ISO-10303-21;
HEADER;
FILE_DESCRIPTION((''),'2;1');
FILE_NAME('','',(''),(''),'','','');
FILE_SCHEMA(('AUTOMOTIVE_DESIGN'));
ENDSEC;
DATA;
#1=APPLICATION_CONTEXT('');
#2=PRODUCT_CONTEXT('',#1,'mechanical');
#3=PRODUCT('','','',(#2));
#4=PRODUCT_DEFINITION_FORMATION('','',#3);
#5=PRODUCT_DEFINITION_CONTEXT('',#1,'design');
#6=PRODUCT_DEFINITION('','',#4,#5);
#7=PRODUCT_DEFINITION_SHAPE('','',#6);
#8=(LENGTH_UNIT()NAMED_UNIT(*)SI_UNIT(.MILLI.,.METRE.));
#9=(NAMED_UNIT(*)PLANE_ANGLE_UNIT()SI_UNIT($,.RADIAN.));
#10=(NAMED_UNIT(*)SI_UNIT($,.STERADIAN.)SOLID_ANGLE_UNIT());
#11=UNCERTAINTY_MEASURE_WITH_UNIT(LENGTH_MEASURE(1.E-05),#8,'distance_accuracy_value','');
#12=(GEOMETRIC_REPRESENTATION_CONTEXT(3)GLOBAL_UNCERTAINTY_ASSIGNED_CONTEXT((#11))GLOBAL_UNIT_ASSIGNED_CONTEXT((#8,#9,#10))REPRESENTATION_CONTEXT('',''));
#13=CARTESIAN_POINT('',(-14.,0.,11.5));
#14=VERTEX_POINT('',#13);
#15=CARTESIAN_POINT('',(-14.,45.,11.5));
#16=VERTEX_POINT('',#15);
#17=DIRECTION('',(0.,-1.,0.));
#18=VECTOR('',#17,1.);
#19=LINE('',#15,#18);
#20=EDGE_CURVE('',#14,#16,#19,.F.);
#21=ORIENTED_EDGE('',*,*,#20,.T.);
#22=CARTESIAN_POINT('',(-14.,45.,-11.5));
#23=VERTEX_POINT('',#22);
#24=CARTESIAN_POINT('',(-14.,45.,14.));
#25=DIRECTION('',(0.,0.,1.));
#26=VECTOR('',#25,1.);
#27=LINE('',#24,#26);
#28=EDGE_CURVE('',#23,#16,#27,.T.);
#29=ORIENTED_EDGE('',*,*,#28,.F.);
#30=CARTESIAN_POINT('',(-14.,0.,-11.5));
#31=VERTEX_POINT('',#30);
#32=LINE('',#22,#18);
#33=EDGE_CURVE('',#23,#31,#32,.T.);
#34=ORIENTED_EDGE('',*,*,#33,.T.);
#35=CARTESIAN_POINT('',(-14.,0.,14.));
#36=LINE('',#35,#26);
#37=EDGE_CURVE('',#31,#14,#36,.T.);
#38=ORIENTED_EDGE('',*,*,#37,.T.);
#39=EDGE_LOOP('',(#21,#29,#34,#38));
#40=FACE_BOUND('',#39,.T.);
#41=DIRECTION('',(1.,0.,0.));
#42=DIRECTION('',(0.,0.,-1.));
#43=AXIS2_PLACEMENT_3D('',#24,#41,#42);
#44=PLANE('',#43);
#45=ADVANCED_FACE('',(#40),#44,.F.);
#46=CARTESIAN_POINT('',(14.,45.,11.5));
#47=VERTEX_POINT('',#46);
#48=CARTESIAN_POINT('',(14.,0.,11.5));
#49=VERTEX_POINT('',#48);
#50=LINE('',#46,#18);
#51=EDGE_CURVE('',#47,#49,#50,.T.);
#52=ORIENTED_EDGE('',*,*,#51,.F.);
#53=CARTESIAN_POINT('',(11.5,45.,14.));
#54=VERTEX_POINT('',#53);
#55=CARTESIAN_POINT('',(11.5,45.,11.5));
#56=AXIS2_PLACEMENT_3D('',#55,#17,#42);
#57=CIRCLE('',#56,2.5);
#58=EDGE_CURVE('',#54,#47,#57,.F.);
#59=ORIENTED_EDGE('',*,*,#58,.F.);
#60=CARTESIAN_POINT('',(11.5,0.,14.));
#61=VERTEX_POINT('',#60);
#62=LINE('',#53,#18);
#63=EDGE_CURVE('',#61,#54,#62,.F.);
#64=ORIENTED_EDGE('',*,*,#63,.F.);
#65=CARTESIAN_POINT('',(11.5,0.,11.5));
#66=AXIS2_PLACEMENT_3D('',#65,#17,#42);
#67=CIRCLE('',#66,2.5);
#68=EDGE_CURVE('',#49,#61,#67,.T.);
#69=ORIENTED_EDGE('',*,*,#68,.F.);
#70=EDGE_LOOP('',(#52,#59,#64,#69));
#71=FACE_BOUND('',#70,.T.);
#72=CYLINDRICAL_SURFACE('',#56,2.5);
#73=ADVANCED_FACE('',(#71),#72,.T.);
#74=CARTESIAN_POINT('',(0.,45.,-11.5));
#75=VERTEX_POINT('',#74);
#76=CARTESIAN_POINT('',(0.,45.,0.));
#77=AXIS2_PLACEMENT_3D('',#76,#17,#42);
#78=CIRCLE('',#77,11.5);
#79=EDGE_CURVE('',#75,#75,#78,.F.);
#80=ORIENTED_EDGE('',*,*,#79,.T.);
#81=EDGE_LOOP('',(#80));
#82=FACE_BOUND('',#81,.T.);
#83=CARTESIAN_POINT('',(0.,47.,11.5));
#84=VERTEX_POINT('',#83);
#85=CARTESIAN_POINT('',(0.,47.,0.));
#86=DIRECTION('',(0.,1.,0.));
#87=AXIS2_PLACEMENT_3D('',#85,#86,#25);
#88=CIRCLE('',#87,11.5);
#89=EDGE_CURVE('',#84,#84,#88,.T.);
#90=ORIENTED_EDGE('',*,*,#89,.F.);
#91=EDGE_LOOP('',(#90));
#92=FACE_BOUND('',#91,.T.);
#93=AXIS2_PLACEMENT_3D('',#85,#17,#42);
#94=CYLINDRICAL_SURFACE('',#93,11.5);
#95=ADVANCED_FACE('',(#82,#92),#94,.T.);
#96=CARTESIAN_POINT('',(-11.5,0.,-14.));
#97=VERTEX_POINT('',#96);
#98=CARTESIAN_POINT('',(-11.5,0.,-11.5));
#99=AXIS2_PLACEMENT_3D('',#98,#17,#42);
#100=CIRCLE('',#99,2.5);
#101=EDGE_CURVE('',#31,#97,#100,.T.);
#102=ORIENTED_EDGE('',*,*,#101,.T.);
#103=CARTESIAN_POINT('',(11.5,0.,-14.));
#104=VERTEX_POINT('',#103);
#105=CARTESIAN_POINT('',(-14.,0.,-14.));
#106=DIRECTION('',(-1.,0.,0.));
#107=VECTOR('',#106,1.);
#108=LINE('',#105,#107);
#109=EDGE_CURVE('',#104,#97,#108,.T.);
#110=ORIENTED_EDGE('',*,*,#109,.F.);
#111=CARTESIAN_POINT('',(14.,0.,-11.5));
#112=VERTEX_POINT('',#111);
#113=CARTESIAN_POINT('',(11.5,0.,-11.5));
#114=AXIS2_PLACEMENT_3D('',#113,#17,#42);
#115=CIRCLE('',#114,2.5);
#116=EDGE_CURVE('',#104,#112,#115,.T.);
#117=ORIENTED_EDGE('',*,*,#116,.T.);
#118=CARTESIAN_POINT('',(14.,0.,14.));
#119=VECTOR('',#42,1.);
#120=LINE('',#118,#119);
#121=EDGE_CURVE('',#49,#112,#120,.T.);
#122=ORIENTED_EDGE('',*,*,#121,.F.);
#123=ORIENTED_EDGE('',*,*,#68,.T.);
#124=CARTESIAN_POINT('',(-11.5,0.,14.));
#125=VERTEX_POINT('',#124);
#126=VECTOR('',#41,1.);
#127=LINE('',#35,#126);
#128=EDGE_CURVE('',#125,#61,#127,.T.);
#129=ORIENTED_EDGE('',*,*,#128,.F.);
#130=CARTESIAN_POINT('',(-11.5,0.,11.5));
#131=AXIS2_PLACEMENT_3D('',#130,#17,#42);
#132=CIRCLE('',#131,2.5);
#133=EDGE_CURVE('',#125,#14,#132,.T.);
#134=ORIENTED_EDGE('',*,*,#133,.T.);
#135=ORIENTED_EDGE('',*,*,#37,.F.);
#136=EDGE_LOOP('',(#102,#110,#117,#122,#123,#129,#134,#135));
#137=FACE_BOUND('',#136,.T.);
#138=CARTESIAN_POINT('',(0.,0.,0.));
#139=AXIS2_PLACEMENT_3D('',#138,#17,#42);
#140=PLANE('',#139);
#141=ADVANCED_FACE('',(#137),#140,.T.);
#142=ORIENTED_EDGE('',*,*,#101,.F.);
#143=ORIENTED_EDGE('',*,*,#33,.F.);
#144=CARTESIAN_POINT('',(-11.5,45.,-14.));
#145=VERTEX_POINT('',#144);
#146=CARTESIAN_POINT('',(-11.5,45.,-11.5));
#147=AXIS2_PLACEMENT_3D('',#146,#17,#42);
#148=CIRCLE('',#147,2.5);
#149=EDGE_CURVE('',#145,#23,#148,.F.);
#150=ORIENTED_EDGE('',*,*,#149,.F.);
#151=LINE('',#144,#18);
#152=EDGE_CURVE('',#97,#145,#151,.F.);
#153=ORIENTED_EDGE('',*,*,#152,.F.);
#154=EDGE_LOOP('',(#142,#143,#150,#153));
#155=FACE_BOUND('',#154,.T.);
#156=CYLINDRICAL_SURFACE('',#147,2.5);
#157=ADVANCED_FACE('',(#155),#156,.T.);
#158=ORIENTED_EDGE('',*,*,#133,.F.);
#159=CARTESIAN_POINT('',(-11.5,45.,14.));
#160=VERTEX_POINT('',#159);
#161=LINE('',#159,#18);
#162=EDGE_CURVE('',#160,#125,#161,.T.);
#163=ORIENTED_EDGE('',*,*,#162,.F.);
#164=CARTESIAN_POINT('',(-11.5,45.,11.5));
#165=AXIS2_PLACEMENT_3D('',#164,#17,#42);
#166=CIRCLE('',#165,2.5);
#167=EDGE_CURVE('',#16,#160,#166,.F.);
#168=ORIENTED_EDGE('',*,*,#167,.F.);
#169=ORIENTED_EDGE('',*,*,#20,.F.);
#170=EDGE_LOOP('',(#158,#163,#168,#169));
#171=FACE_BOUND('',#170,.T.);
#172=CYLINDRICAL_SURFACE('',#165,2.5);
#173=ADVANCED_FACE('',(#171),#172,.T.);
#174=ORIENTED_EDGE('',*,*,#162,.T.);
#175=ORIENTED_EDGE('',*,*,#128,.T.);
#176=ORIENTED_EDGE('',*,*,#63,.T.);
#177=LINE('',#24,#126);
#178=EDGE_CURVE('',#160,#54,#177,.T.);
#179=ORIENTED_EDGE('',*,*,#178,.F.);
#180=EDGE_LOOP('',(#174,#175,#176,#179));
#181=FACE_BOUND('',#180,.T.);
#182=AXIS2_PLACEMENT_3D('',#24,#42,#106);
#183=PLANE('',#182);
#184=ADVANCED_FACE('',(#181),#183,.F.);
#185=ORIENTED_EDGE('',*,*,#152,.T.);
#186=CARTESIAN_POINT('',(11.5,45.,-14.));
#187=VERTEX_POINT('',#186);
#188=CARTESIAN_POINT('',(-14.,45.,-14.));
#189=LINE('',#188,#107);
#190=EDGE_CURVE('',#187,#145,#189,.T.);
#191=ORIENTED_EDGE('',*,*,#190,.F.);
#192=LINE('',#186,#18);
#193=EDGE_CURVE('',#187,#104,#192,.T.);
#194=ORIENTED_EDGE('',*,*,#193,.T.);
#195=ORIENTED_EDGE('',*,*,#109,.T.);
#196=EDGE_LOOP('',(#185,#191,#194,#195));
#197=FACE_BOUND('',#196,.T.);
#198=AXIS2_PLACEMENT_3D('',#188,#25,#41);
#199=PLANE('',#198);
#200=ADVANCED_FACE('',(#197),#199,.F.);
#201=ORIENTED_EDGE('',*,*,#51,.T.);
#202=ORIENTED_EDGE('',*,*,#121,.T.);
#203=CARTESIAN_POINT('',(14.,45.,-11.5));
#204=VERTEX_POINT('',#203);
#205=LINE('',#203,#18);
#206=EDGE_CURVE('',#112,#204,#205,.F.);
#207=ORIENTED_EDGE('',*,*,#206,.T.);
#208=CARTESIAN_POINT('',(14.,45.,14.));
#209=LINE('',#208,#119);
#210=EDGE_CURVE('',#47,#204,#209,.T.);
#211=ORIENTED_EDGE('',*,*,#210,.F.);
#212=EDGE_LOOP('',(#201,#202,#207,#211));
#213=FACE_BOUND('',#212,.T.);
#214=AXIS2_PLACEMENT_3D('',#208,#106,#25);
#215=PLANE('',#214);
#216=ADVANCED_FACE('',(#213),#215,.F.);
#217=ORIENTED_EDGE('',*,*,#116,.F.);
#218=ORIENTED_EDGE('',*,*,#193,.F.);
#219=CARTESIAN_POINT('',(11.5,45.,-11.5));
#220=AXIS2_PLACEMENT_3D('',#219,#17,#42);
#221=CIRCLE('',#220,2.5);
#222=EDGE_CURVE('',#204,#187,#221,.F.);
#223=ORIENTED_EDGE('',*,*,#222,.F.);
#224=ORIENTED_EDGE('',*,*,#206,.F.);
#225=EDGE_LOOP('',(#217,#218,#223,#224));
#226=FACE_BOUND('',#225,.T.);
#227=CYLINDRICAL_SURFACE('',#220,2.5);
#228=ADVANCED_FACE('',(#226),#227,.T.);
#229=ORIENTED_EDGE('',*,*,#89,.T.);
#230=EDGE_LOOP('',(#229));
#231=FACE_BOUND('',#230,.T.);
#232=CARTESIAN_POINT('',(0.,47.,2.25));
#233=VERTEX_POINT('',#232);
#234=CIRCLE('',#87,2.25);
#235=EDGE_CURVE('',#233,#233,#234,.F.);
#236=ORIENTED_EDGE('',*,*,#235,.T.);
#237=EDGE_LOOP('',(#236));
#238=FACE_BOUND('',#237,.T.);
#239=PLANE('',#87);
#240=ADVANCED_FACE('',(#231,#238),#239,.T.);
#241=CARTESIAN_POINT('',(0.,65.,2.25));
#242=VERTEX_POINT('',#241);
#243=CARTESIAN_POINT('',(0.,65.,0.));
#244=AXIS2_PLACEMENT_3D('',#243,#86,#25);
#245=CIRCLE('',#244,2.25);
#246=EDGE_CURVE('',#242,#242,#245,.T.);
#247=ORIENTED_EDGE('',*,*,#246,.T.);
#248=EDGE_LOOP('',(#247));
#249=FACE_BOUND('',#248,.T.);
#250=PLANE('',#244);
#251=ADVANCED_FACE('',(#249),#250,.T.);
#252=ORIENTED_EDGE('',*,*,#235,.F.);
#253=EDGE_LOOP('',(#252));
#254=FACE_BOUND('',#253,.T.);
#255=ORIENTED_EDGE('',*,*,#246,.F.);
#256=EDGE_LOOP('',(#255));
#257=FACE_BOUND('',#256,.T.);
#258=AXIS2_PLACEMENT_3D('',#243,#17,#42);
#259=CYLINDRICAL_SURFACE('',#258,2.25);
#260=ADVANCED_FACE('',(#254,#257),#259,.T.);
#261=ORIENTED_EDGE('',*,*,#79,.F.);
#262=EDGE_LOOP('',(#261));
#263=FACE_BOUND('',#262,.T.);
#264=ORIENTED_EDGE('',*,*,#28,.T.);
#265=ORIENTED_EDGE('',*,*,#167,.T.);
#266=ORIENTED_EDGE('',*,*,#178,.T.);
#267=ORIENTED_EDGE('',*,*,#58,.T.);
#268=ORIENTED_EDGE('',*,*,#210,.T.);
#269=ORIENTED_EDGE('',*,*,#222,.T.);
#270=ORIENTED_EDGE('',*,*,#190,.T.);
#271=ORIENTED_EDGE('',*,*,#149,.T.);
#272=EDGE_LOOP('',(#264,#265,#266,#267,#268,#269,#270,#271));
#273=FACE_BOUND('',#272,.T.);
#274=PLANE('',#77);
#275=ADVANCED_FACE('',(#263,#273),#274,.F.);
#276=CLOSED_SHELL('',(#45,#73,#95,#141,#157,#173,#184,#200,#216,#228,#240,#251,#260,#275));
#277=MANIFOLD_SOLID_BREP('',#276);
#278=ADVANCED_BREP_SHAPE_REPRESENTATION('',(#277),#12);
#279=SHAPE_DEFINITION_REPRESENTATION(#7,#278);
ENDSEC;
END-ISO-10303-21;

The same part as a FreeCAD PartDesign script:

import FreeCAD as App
import Part
import Sketcher

V = App.Vector
Q = App.Units.Quantity


def edges_at(feature, points):
    """Names of the edges that pass closest to the given points."""
    edges = feature.Shape.Edges
    near = lambda p: min(range(len(edges)), key=lambda i: edges[i].distToShape(Part.Vertex(*p))[0])
    return sorted({f"Edge{near(p) + 1}" for p in points})

doc = App.newDocument("Part")
params = doc.addObject("Spreadsheet::Sheet", "Params")
for row, (alias, value) in enumerate([
    ("sketch1_width", "28 mm"),
    ("pad1_length", "45 mm"),
    ("sketch2_diameter", "23 mm"),
    ("pad2_length", "2 mm"),
    ("sketch3_diameter", "4.5 mm"),
    ("pad3_length", "20 mm"),
    ("fillet_radius", "2.5 mm"),
], start=1):
    params.set(f"A{row}", alias)
    params.set(f"B{row}", "=" + value)
    params.setAlias(f"B{row}", alias)

body = doc.addObject("PartDesign::Body", "Body")

# Sketch on XZ plane
sketch1 = body.newObject("Sketcher::SketchObject", "Sketch")
sketch1.AttachmentSupport = (doc.getObject("XZ_Plane"), [""])
sketch1.MapMode = "FlatFace"
sketch1.addGeometry(Part.LineSegment(V(-14, -14, 0), V(-14, 14, 0)), False)
sketch1.addGeometry(Part.LineSegment(V(-14, 14, 0), V(14, 14, 0)), False)
sketch1.addGeometry(Part.LineSegment(V(14, 14, 0), V(14, -14, 0)), False)
sketch1.addGeometry(Part.LineSegment(V(14, -14, 0), V(-14, -14, 0)), False)
sketch1.addConstraint(Sketcher.Constraint("Coincident", 0, 2, 1, 1))
sketch1.addConstraint(Sketcher.Constraint("Coincident", 1, 2, 2, 1))
sketch1.addConstraint(Sketcher.Constraint("Coincident", 2, 2, 3, 1))
sketch1.addConstraint(Sketcher.Constraint("Coincident", 3, 2, 0, 1))
sketch1.addConstraint(Sketcher.Constraint("Vertical", 0))
sketch1.addConstraint(Sketcher.Constraint("Horizontal", 1))
sketch1.addConstraint(Sketcher.Constraint("Vertical", 2))
sketch1.addConstraint(Sketcher.Constraint("Horizontal", 3))
sketch1.addConstraint(Sketcher.Constraint("Symmetric", 0, 2, 2, 2, -1, 1))
sketch1.addConstraint(Sketcher.Constraint("Equal", 3, 0))
sketch1.addConstraint(Sketcher.Constraint("DistanceX", 1, 1, 1, 2, Q("28 mm")))
sketch1.setExpression("Constraints[10]", "Params.sketch1_width")
pad1 = body.newObject("PartDesign::Pad", "Pad")
pad1.Profile = sketch1
pad1.setExpression("Length", "Params.pad1_length")
pad1.Reversed = True

# Sketch on XZ plane
sketch2 = body.newObject("Sketcher::SketchObject", "Sketch001")
sketch2.AttachmentSupport = (doc.getObject("XZ_Plane"), [""])
sketch2.MapMode = "FlatFace"
sketch2.AttachmentOffset = App.Placement(V(0, 0, -45), App.Rotation())
sketch2.addGeometry(Part.Circle(V(0, 0, 0), V(0, 0, 1), 12), False)
sketch2.addConstraint(Sketcher.Constraint("Coincident", 0, 3, -1, 1))
sketch2.addConstraint(Sketcher.Constraint("Diameter", 0, Q("23 mm")))
sketch2.setExpression("Constraints[1]", "Params.sketch2_diameter")
pad2 = body.newObject("PartDesign::Pad", "Pad001")
pad2.Profile = sketch2
pad2.setExpression("Length", "Params.pad2_length")
pad2.Reversed = True

# Sketch on XZ plane
sketch3 = body.newObject("Sketcher::SketchObject", "Sketch002")
sketch3.AttachmentSupport = (doc.getObject("XZ_Plane"), [""])
sketch3.MapMode = "FlatFace"
sketch3.AttachmentOffset = App.Placement(V(0, 0, -45), App.Rotation())
sketch3.addGeometry(Part.Circle(V(0, 0, 0), V(0, 0, 1), 2.2), False)
sketch3.addConstraint(Sketcher.Constraint("Coincident", 0, 3, -1, 1))
sketch3.addConstraint(Sketcher.Constraint("Diameter", 0, Q("4.5 mm")))
sketch3.setExpression("Constraints[1]", "Params.sketch3_diameter")
pad3 = body.newObject("PartDesign::Pad", "Pad002")
pad3.Profile = sketch3
pad3.setExpression("Length", "Params.pad3_length")
pad3.Reversed = True
doc.recompute()

fillet = body.newObject("PartDesign::Fillet", "Fillet")
fillet.Base = (pad3, edges_at(pad3, [
    (-14, 22.5, -14),
    (14, 22.5, -14),
    (14, 22.5, 14),
    (-14, 22.5, 14),
]))
fillet.setExpression("Radius", "Params.fillet_radius")

doc.recompute()
